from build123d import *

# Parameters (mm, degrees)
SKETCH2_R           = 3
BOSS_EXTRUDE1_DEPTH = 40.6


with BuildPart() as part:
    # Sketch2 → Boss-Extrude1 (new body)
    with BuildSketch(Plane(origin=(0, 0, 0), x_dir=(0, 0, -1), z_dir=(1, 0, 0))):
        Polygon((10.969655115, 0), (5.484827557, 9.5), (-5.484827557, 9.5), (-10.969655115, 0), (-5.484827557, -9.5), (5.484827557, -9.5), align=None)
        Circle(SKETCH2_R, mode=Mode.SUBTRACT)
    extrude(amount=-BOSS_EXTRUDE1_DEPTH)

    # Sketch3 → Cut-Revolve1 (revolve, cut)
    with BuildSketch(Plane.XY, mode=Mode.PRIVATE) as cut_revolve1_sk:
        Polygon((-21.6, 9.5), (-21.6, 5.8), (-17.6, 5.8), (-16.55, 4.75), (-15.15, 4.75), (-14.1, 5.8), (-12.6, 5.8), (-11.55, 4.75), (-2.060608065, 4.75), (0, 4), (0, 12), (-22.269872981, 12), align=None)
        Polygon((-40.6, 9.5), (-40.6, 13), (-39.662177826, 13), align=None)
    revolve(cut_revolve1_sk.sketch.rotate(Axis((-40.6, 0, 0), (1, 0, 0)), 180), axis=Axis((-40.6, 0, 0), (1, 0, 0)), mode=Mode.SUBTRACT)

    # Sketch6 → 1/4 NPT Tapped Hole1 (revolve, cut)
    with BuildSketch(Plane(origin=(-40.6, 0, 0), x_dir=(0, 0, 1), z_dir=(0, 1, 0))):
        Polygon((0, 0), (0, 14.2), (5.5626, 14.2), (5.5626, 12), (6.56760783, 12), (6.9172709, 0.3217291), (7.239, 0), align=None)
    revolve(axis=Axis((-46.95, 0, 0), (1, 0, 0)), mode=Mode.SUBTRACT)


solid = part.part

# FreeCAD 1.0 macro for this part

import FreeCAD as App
import Part
import Sketcher
from FreeCAD import Vector
Q = App.Units.Quantity

doc = App.newDocument("Part")
body = doc.addObject("PartDesign::Body", "Body")

# Sketch on YZ plane
sketch1 = body.newObject("Sketcher::SketchObject", "Sketch")
sketch1.AttachmentSupport = (doc.getObject("YZ_Plane"), [""])
sketch1.MapMode = "FlatFace"
sketch1.addGeometry([
    Part.LineSegment(Vector(0, -10.969655, 0), Vector(9.5, -5.484828, 0)),  # 0
    Part.LineSegment(Vector(9.5, -5.484828, 0), Vector(9.5, 5.484828, 0)),  # 1
    Part.LineSegment(Vector(9.5, 5.484828, 0), Vector(0, 10.969655, 0)),  # 2
    Part.LineSegment(Vector(0, 10.969655, 0), Vector(-9.5, 5.484828, 0)),  # 3
    Part.LineSegment(Vector(-9.5, 5.484828, 0), Vector(-9.5, -5.484828, 0)),  # 4
    Part.LineSegment(Vector(-9.5, -5.484828, 0), Vector(0, -10.969655, 0)),  # 5
    Part.Circle(Vector(0, 0, 0), Vector(0, 0, 1), 3),  # 6
], False)
sketch1.addConstraint([
    Sketcher.Constraint("Coincident", 0, 2, 1, 1),
    Sketcher.Constraint("Coincident", 1, 2, 2, 1),
    Sketcher.Constraint("Coincident", 2, 2, 3, 1),
    Sketcher.Constraint("Coincident", 3, 2, 4, 1),
    Sketcher.Constraint("Coincident", 4, 2, 5, 1),
    Sketcher.Constraint("Coincident", 5, 2, 0, 1),
    Sketcher.Constraint("Vertical", 1),
    Sketcher.Constraint("Vertical", 4),
    Sketcher.Constraint("Coincident", 6, 3, -1, 1),
    Sketcher.Constraint("Symmetric", 0, 2, 3, 2, -1, 1),
    Sketcher.Constraint("Symmetric", 2, 2, 5, 2, -1, 1),
    Sketcher.Constraint("PointOnObject", 2, 2, -2),
    Sketcher.Constraint("Parallel", 2, 5),
    Sketcher.Constraint("Horizontal", 1, 2, 3, 2),
    Sketcher.Constraint("Diameter", 6, 6.0),
    Sketcher.Constraint("Angle", 0, Q("30 deg")),
    Sketcher.Constraint("DistanceX", 3, 2, 1, 2, 19.0),
    Sketcher.Constraint("DistanceY", 1, 1, 1, 2, 10.969655),
])
pad1 = body.newObject("PartDesign::Pad", "Pad")
pad1.Profile = sketch1
pad1.Length = 40.6
pad1.Reversed = True

# Sketch on XY plane
sketch2 = body.newObject("Sketcher::SketchObject", "Sketch001")
sketch2.AttachmentSupport = (doc.getObject("XY_Plane"), [""])
sketch2.MapMode = "FlatFace"
sketch2.addGeometry([
    Part.LineSegment(Vector(-21.6, 9.5, 0), Vector(-21.6, 5.8, 0)),  # 0
    Part.LineSegment(Vector(-21.6, 5.8, 0), Vector(-17.6, 5.8, 0)),  # 1
    Part.LineSegment(Vector(-17.6, 5.8, 0), Vector(-16.55, 4.75, 0)),  # 2
    Part.LineSegment(Vector(-16.55, 4.75, 0), Vector(-15.15, 4.75, 0)),  # 3
    Part.LineSegment(Vector(-15.15, 4.75, 0), Vector(-14.1, 5.8, 0)),  # 4
    Part.LineSegment(Vector(-14.1, 5.8, 0), Vector(-12.6, 5.8, 0)),  # 5
    Part.LineSegment(Vector(-12.6, 5.8, 0), Vector(-11.55, 4.75, 0)),  # 6
    Part.LineSegment(Vector(-11.55, 4.75, 0), Vector(-2.060608, 4.75, 0)),  # 7
    Part.LineSegment(Vector(-2.060608, 4.75, 0), Vector(0, 4, 0)),  # 8
    Part.LineSegment(Vector(0, 4, 0), Vector(0, 12, 0)),  # 9
    Part.LineSegment(Vector(0, 12, 0), Vector(-22.269873, 12, 0)),  # 10
    Part.LineSegment(Vector(-22.269873, 12, 0), Vector(-21.6, 9.5, 0)),  # 11
    Part.LineSegment(Vector(-40.6, 13, 0), Vector(-40.6, 9.5, 0)),  # 12
    Part.LineSegment(Vector(-40.6, 9.5, 0), Vector(-39.662178, 13, 0)),  # 13
    Part.LineSegment(Vector(-39.662178, 13, 0), Vector(-40.6, 13, 0)),  # 14
], False)
sketch2.addConstraint([
    Sketcher.Constraint("Coincident", 0, 2, 1, 1),
    Sketcher.Constraint("Coincident", 1, 2, 2, 1),
    Sketcher.Constraint("Coincident", 2, 2, 3, 1),
    Sketcher.Constraint("Coincident", 3, 2, 4, 1),
    Sketcher.Constraint("Coincident", 4, 2, 5, 1),
    Sketcher.Constraint("Coincident", 5, 2, 6, 1),
    Sketcher.Constraint("Coincident", 6, 2, 7, 1),
    Sketcher.Constraint("Coincident", 7, 2, 8, 1),
    Sketcher.Constraint("Coincident", 8, 2, 9, 1),
    Sketcher.Constraint("Coincident", 9, 2, 10, 1),
    Sketcher.Constraint("Coincident", 10, 2, 11, 1),
    Sketcher.Constraint("Coincident", 11, 2, 0, 1),
    Sketcher.Constraint("Coincident", 12, 2, 13, 1),
    Sketcher.Constraint("Coincident", 13, 2, 14, 1),
    Sketcher.Constraint("Coincident", 14, 2, 12, 1),
    Sketcher.Constraint("Vertical", 0),
    Sketcher.Constraint("Horizontal", 1),
    Sketcher.Constraint("Horizontal", 3),
    Sketcher.Constraint("Horizontal", 5),
    Sketcher.Constraint("Horizontal", 7),
    Sketcher.Constraint("Vertical", 9),
    Sketcher.Constraint("Horizontal", 10),
    Sketcher.Constraint("Vertical", 12),
    Sketcher.Constraint("Horizontal", 14),
    Sketcher.Constraint("PointOnObject", 8, 2, -2),
    Sketcher.Constraint("Perpendicular", 2, 4),
    Sketcher.Constraint("Perpendicular", 4, 6),
    Sketcher.Constraint("Horizontal", 1, 2, 4, 2),
    Sketcher.Constraint("Horizontal", 3, 2, 6, 2),
    Sketcher.Constraint("Horizontal", 11, 2, 12, 2),
    Sketcher.Constraint("Equal", 2, 4),
    Sketcher.Constraint("DistanceX", 1, 1, 1, 2, 4.0),
    Sketcher.Constraint("DistanceY", 9, 1, 9, 2, 8.0),
    Sketcher.Constraint("Angle", 8, Q("-20 deg")),
    Sketcher.Constraint("Angle", 11, Q("-75 deg")),
    Sketcher.Constraint("Angle", 13, Q("75 deg")),
    Sketcher.Constraint("DistanceX", 3, 1, 3, 2, 1.4),
    Sketcher.Constraint("DistanceX", 5, 1, 5, 2, 1.5),
    Sketcher.Constraint("DistanceY", 0, 2, 0, 1, 3.7),
    Sketcher.Constraint("DistanceY", 12, 2, 12, 1, 3.5),
    Sketcher.Constraint("DistanceY", -1, 1, 8, 2, 4.0),
    Sketcher.Constraint("DistanceY", -1, 1, 13, 2, 13.0),
    Sketcher.Constraint("DistanceX", 1, 2, 5, 2, 5.0),
    Sketcher.Constraint("DistanceX", 12, 2, 11, 2, 19.0),
    Sketcher.Constraint("DistanceX", 0, 2, -1, 1, 21.6),
])
groove = body.newObject("PartDesign::Groove", "Groove")
groove.Profile = sketch2
groove.ReferenceAxis = (sketch2, ["H_Axis"])
groove.Angle = 360

# Sketch on XZ plane
sketch3 = body.newObject("Sketcher::SketchObject", "Sketch002")
sketch3.AttachmentSupport = (doc.getObject("XZ_Plane"), [""])
sketch3.MapMode = "FlatFace"
sketch3.addGeometry([
    Part.LineSegment(Vector(-26.4, 0, 0), Vector(-40.6, 0, 0)),  # 0
    Part.LineSegment(Vector(-40.6, 0, 0), Vector(-40.6, 7.239, 0)),  # 1
    Part.LineSegment(Vector(-40.6, 7.239, 0), Vector(-40.278271, 6.917271, 0)),  # 2
    Part.LineSegment(Vector(-40.278271, 6.917271, 0), Vector(-28.6, 6.567608, 0)),  # 3
    Part.LineSegment(Vector(-28.6, 6.567608, 0), Vector(-28.6, 5.5626, 0)),  # 4
    Part.LineSegment(Vector(-28.6, 5.5626, 0), Vector(-26.4, 5.5626, 0)),  # 5
    Part.LineSegment(Vector(-26.4, 5.5626, 0), Vector(-26.4, 0, 0)),  # 6
], False)
sketch3.addConstraint([
    Sketcher.Constraint("Coincident", 0, 2, 1, 1),
    Sketcher.Constraint("Coincident", 1, 2, 2, 1),
    Sketcher.Constraint("Coincident", 2, 2, 3, 1),
    Sketcher.Constraint("Coincident", 3, 2, 4, 1),
    Sketcher.Constraint("Coincident", 4, 2, 5, 1),
    Sketcher.Constraint("Coincident", 5, 2, 6, 1),
    Sketcher.Constraint("Coincident", 6, 2, 0, 1),
    Sketcher.Constraint("Horizontal", 0),
    Sketcher.Constraint("Vertical", 1),
    Sketcher.Constraint("Vertical", 4),
    Sketcher.Constraint("Horizontal", 5),
    Sketcher.Constraint("Vertical", 6),
    Sketcher.Constraint("PointOnObject", 0, 2, -1),
    Sketcher.Constraint("Angle", 2, Q("-45 deg")),
    Sketcher.Constraint("DistanceX", 0, 2, 0, 1, 14.2),
    Sketcher.Constraint("DistanceX", 5, 1, 5, 2, 2.2),
    Sketcher.Constraint("DistanceX", 0, 2, -1, 1, 40.6),
    Sketcher.Constraint("DistanceY", 1, 1, 1, 2, 7.239),
    Sketcher.Constraint("DistanceY", 6, 2, 6, 1, 5.5626),
    Sketcher.Constraint("DistanceY", 4, 2, 4, 1, 1.005008),
    Sketcher.Constraint("DistanceX", 2, 2, -1, 1, 40.278271),
])
groove2 = body.newObject("PartDesign::Groove", "Groove001")
groove2.Profile = sketch3
groove2.ReferenceAxis = (sketch3, ["H_Axis"])
groove2.Angle = 360

doc.recompute()
